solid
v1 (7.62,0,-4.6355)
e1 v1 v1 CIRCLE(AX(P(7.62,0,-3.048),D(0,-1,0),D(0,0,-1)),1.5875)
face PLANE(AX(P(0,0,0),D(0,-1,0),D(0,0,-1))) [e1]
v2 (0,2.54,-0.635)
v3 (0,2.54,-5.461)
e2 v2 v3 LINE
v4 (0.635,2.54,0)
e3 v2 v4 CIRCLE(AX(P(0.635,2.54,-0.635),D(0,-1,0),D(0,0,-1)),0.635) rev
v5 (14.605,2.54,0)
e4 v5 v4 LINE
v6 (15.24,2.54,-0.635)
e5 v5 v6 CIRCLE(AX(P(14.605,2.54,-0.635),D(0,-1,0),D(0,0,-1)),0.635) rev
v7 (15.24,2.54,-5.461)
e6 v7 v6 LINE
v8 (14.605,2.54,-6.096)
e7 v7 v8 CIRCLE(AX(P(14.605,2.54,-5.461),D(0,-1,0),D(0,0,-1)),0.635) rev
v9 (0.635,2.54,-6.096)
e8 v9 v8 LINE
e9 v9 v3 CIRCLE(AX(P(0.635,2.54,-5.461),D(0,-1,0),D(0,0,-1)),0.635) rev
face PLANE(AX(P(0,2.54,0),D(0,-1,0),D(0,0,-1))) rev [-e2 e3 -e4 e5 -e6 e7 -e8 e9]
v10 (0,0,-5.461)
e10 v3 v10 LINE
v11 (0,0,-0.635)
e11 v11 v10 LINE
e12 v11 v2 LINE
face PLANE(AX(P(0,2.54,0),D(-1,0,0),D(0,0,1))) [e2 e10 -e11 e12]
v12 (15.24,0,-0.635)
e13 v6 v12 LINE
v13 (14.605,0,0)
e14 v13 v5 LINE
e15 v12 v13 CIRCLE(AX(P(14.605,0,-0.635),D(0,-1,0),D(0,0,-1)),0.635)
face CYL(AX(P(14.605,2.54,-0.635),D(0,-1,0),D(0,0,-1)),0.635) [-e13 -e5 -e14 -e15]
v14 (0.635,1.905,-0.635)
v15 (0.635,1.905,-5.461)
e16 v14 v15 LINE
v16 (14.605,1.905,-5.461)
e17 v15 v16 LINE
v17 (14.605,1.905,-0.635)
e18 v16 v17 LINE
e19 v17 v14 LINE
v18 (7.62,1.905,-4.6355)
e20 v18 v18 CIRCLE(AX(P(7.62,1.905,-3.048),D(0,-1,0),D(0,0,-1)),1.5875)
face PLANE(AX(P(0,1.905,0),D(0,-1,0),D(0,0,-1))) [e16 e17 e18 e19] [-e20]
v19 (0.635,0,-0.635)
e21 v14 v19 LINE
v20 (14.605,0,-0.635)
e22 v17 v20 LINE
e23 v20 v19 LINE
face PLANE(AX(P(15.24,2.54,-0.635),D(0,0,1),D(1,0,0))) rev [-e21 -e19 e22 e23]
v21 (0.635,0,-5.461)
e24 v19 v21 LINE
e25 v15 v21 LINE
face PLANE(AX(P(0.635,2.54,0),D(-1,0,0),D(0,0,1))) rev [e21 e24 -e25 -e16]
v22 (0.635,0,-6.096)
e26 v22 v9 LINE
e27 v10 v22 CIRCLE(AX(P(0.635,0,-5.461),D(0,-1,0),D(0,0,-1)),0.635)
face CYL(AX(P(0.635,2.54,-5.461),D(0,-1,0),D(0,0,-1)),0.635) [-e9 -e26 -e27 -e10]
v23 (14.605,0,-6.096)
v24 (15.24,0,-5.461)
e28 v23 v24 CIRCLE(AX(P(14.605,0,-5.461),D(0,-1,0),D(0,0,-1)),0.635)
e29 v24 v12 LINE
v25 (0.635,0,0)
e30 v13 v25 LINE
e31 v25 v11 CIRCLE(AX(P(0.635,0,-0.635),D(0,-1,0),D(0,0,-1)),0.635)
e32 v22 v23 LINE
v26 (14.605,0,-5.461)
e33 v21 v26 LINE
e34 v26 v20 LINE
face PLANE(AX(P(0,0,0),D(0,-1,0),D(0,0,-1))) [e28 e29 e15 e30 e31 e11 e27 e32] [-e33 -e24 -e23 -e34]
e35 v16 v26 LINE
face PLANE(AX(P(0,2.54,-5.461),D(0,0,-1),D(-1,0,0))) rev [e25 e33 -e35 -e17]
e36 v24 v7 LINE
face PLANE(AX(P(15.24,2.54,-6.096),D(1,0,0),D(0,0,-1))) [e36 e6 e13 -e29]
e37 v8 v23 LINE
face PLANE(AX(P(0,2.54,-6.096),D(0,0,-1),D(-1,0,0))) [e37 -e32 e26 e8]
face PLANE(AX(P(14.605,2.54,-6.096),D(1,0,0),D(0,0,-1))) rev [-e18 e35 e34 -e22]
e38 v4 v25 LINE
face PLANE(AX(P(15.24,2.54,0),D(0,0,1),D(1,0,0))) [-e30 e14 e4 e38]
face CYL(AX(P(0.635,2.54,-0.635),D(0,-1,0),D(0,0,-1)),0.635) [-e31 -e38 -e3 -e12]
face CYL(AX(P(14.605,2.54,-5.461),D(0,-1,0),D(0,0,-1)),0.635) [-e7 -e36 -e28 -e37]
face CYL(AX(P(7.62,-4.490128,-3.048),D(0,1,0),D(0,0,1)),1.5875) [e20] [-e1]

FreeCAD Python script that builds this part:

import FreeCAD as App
import Part
import Sketcher

V = App.Vector
Q = App.Units.Quantity


def edges_at(feature, points):
    """Names of the edges that pass closest to the given points."""
    edges = feature.Shape.Edges
    near = lambda p: min(range(len(edges)), key=lambda i: edges[i].distToShape(Part.Vertex(*p))[0])
    return sorted({f"Edge{near(p) + 1}" for p in points})


def faces_at(feature, points):
    """Names of the faces that lie closest to the given points."""
    faces = feature.Shape.Faces
    near = lambda p: min(range(len(faces)), key=lambda i: faces[i].distToShape(Part.Vertex(*p))[0])
    return sorted({f"Face{near(p) + 1}" for p in points})

doc = App.newDocument("Part")
body = doc.addObject("PartDesign::Body", "Body")

# Sketch on XZ plane
sketch1 = doc.addObject("Sketcher::SketchObject", "Sketch")
body.addObject(sketch1)
sketch1.AttachmentSupport = (doc.XZ_Plane, [""])
sketch1.MapMode = "FlatFace"
sketch1.addGeometry([
    Part.LineSegment(V(0, -6, 0), V(0, 0, 0)),
    Part.LineSegment(V(0, 0, 0), V(15, 0, 0)),
    Part.LineSegment(V(15, 0, 0), V(15, -6, 0)),
    Part.LineSegment(V(15, -6, 0), V(0, -6, 0)),
], False)
sketch1.addConstraint([
    Sketcher.Constraint("Coincident", 0, 2, 1, 1),
    Sketcher.Constraint("Coincident", 1, 2, 2, 1),
    Sketcher.Constraint("Coincident", 2, 2, 3, 1),
    Sketcher.Constraint("Coincident", 3, 2, 0, 1),
    Sketcher.Constraint("Vertical", 0),
    Sketcher.Constraint("Horizontal", 1),
    Sketcher.Constraint("Vertical", 2),
    Sketcher.Constraint("Horizontal", 3),
    Sketcher.Constraint("Coincident", 0, 2, -1, 1),
    Sketcher.Constraint("DistanceX", 1, 1, 1, 2, Q("0.6 in")),
    Sketcher.Constraint("DistanceY", 0, 1, 0, 2, Q("0.24 in")),
])
pad1 = doc.addObject("PartDesign::Pad", "Pad")
body.addObject(pad1)
pad1.Profile = sketch1
pad1.Length = Q("0.1 in")
pad1.Reversed = True
doc.recompute()

thickness = doc.addObject("PartDesign::Thickness", "Thickness")
body.addObject(thickness)
thickness.Base = (pad1, faces_at(pad1, [(7.62, 0, -3.048)]))
thickness.Value = Q("0.025 in")
thickness.Reversed = True
thickness.Join = "Intersection"
doc.recompute()

fillet = doc.addObject("PartDesign::Fillet", "Fillet")
body.addObject(fillet)
fillet.Base = (thickness, edges_at(thickness, [
    (0, 1.27, 0),
    (15.24, 1.27, 0),
    (15.24, 1.27, -6.096),
    (0, 1.27, -6.096),
]))
fillet.Radius = Q("0.025 in")

# Sketch on XZ plane
sketch2 = doc.addObject("Sketcher::SketchObject", "Sketch001")
body.addObject(sketch2)
sketch2.AttachmentSupport = (doc.XZ_Plane, [""])
sketch2.MapMode = "FlatFace"
sketch2.AttachmentOffset = App.Placement(V(0, 0, -0.075 * 25.4), App.Rotation())
sketch2.addGeometry(Part.Circle(V(7.6, -3, 0), V(0, 0, 1), 1.6), False)
sketch2.addConstraint([
    Sketcher.Constraint("Diameter", 0, Q("0.125 in")),
    Sketcher.Constraint("DistanceX", -1, 1, 0, 3, Q("0.3 in")),
    Sketcher.Constraint("DistanceY", 0, 3, -1, 1, Q("0.12 in")),
])
pad2 = doc.addObject("PartDesign::Pad", "Pad001")
body.addObject(pad2)
pad2.Profile = sketch2
pad2.Length = Q("0.075 in")

doc.recompute()
